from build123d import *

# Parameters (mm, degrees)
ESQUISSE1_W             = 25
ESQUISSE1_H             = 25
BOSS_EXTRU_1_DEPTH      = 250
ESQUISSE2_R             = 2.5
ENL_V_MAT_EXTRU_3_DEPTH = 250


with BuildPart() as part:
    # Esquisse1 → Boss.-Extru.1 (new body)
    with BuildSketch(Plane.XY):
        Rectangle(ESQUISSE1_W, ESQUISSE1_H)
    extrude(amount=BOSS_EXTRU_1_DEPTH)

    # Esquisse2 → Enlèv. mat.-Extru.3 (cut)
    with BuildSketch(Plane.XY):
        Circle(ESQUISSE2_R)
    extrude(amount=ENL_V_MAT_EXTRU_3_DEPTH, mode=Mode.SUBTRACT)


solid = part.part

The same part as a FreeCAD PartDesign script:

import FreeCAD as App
import Part
import Sketcher

V = App.Vector


def add_polygon(sketch, points):
    """Adds a closed chain of lines whose ends are joined by coincident constraints."""
    first, n = sketch.GeometryCount, len(points)
    for a, b in zip(points, points[1:] + points[:1]):
        sketch.addGeometry(Part.LineSegment(App.Vector(*a, 0), App.Vector(*b, 0)), False)
    for i in range(n):
        sketch.addConstraint(Sketcher.Constraint("Coincident", first + i, 2, first + (i + 1) % n, 1))

doc = App.newDocument("Part")
body = doc.addObject("PartDesign::Body", "Body")

# Sketch on XY plane
sketch1 = body.newObject("Sketcher::SketchObject", "Sketch")
sketch1.AttachmentSupport = (doc.getObject("XY_Plane"), [""])
sketch1.MapMode = "FlatFace"
add_polygon(sketch1, [(-12, 12), (-12, -12), (12, -12), (12, 12)])  # lines 0-3
sketch1.addConstraint([
    Sketcher.Constraint("Vertical", 0),
    Sketcher.Constraint("Horizontal", 1),
    Sketcher.Constraint("Vertical", 2),
    Sketcher.Constraint("Horizontal", 3),
    Sketcher.Constraint("Symmetric", 0, 2, 2, 2, -1, 1),
    Sketcher.Constraint("Equal", 3, 0),
    Sketcher.Constraint("DistanceX", 1, 1, 1, 2, 25.0),
])
pad1 = body.newObject("PartDesign::Pad", "Pad")
pad1.Profile = sketch1
pad1.Length = 250

# Sketch on XY plane
sketch2 = body.newObject("Sketcher::SketchObject", "Sketch001")
sketch2.AttachmentSupport = (doc.getObject("XY_Plane"), [""])
sketch2.MapMode = "FlatFace"
sketch2.addGeometry(Part.Circle(V(0, 0, 0), V(0, 0, 1), 2.5), False)
sketch2.addConstraint([
    Sketcher.Constraint("Coincident", 0, 3, -1, 1),
    Sketcher.Constraint("Diameter", 0, 5.0),
])
pocket1 = body.newObject("PartDesign::Pocket", "Pocket")
pocket1.Profile = sketch2
pocket1.Length = 250
pocket1.Reversed = True

doc.recompute()
